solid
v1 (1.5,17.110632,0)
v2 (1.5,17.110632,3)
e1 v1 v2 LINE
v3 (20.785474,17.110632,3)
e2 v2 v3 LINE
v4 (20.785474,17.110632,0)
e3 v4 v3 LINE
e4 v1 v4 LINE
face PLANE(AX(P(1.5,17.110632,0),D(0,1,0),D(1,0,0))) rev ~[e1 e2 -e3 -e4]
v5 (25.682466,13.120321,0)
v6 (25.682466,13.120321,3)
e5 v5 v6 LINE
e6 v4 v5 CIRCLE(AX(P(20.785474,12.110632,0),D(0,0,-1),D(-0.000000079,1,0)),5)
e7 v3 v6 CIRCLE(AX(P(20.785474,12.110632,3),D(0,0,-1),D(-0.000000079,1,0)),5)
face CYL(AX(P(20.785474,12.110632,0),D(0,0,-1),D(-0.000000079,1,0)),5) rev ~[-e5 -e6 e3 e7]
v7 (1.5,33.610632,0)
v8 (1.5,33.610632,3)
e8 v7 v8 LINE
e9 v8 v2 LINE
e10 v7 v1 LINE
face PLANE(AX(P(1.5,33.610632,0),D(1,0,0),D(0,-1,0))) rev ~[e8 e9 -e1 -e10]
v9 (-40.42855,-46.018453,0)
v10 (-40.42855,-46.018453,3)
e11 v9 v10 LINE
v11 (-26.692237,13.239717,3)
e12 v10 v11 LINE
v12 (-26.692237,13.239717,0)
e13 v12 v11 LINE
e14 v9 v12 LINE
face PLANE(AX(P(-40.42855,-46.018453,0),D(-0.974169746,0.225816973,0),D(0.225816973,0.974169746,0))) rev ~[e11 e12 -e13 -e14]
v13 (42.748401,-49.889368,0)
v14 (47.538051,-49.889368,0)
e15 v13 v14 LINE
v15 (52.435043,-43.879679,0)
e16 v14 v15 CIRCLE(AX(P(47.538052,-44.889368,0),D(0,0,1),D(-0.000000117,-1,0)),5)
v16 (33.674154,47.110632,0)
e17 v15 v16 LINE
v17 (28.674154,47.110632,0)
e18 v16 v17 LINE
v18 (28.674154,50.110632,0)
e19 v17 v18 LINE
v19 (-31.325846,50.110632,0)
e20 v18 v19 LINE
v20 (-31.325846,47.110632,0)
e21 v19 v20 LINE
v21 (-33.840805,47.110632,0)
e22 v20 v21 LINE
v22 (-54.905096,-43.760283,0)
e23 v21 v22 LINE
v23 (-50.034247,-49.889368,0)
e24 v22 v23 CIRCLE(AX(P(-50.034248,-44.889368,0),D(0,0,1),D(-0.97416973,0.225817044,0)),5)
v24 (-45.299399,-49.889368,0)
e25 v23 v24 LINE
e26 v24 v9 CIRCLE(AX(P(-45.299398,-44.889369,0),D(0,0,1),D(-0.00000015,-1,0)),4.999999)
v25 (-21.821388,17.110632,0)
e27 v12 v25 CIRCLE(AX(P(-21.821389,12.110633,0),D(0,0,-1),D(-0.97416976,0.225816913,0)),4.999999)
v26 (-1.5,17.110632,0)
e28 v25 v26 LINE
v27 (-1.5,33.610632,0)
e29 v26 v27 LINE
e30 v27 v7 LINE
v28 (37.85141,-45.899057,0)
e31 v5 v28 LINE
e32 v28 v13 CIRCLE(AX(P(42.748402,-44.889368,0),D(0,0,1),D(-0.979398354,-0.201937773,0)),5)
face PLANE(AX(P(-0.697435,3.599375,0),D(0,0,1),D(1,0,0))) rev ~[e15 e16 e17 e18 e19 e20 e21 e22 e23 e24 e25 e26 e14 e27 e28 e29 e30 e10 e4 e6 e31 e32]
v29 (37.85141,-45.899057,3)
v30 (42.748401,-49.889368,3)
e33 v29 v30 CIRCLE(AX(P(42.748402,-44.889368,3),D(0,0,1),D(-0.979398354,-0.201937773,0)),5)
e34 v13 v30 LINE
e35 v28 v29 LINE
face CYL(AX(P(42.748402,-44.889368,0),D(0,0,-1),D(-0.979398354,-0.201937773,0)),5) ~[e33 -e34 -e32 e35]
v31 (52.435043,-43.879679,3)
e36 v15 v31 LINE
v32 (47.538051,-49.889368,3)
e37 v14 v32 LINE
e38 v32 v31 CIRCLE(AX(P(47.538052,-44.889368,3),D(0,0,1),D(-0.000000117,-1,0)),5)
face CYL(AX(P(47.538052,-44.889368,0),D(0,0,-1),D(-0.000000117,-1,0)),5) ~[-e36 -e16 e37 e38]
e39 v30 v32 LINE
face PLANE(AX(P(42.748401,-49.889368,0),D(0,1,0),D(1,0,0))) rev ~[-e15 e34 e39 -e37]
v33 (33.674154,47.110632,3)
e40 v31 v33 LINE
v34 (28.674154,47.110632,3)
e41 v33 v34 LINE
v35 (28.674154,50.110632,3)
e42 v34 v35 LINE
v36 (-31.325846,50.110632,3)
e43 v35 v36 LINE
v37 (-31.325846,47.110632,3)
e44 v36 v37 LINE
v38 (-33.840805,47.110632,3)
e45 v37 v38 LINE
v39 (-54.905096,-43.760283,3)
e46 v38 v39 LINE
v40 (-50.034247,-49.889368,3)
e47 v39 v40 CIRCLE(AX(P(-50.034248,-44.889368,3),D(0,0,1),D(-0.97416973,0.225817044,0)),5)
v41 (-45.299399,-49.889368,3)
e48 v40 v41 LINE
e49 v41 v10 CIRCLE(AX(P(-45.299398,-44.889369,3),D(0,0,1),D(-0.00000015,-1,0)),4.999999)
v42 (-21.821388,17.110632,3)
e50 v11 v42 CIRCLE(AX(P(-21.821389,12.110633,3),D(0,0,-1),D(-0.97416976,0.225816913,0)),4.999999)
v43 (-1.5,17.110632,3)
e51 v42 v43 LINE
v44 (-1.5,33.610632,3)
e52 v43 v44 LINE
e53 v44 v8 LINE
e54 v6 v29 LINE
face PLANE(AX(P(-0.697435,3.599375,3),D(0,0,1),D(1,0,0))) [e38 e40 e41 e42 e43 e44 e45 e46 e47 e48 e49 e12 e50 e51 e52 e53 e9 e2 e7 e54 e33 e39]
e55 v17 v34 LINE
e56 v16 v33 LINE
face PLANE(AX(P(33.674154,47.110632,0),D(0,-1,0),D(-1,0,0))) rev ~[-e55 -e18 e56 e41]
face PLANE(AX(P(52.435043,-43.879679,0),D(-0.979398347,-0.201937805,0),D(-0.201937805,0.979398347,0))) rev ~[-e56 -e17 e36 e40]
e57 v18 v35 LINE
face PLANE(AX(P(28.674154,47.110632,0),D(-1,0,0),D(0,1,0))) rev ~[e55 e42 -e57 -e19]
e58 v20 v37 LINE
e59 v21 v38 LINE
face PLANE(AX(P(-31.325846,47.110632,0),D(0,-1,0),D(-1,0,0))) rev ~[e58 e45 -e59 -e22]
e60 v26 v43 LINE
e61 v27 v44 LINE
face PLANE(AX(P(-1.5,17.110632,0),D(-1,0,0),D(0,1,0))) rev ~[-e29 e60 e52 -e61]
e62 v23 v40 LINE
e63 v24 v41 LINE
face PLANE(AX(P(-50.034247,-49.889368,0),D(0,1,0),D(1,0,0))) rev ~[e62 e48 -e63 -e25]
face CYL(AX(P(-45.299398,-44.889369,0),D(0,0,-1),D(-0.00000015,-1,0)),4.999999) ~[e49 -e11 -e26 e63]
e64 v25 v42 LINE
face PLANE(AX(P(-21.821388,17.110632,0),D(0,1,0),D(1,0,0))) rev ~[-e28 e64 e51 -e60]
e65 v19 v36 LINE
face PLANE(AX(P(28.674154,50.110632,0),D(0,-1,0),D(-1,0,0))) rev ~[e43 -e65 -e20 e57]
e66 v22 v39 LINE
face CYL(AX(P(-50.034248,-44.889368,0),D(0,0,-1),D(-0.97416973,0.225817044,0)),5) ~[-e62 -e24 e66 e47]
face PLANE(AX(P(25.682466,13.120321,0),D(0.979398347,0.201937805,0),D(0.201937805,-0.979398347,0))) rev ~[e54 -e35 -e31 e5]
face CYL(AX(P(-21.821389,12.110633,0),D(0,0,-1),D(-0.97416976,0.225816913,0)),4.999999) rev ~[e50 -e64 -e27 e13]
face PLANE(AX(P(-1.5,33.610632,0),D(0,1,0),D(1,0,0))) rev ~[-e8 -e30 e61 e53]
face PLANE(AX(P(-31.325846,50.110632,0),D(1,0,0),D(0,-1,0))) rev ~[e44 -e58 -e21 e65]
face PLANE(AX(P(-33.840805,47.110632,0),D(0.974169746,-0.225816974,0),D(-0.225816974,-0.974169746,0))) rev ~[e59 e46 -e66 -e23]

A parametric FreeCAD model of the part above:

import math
import FreeCAD as App
import Part
import Sketcher
Q = App.Units.Quantity

doc = App.newDocument("Part")
body = doc.addObject("PartDesign::Body", "Body")

# Sketch on XY plane
sketch1 = body.newObject("Sketcher::SketchObject", "Sketch")
sketch1.AttachmentSupport = (doc.getObject("XY_Plane"), [""])
sketch1.MapMode = "FlatFace"
sketch1.addGeometry([
    Part.LineSegment(App.Vector(28.7, 50.1, 0), App.Vector(-31.3, 50.1, 0)),  # 0
    Part.LineSegment(App.Vector(-31.3, 50.1, 0), App.Vector(-31.3, 47.1, 0)),  # 1
    Part.LineSegment(App.Vector(-31.3, 47.1, 0), App.Vector(-33.8, 47.1, 0)),  # 2
    Part.LineSegment(App.Vector(-33.8, 47.1, 0), App.Vector(-54.9, -43.8, 0)),  # 3
    Part.ArcOfCircle(Part.Circle(App.Vector(-50, -44.9, 0), App.Vector(0, 0, 1), 5), math.radians(167), math.radians(270)),  # 4
    Part.LineSegment(App.Vector(-50, -49.9, 0), App.Vector(-45.3, -49.9, 0)),  # 5
    Part.ArcOfCircle(Part.Circle(App.Vector(-45.3, -44.9, 0), App.Vector(0, 0, 1), 5), math.radians(-90), math.radians(-13)),  # 6
    Part.LineSegment(App.Vector(-40.4, -46, 0), App.Vector(-26.7, 13.2, 0)),  # 7
    Part.ArcOfCircle(Part.Circle(App.Vector(-21.8, 12.1, 0), App.Vector(0, 0, 1), 5), math.radians(90), math.radians(167)),  # 8
    Part.LineSegment(App.Vector(-21.8, 17.1, 0), App.Vector(-1.5, 17.1, 0)),  # 9
    Part.LineSegment(App.Vector(-1.5, 17.1, 0), App.Vector(-1.5, 33.6, 0)),  # 10
    Part.LineSegment(App.Vector(-1.5, 33.6, 0), App.Vector(1.5, 33.6, 0)),  # 11
    Part.LineSegment(App.Vector(1.5, 33.6, 0), App.Vector(1.5, 17.1, 0)),  # 12
    Part.LineSegment(App.Vector(1.5, 17.1, 0), App.Vector(20.8, 17.1, 0)),  # 13
    Part.ArcOfCircle(Part.Circle(App.Vector(20.8, 12.1, 0), App.Vector(0, 0, 1), 5), math.radians(12), math.radians(90)),  # 14
    Part.LineSegment(App.Vector(25.7, 13.1, 0), App.Vector(37.9, -45.9, 0)),  # 15
    Part.ArcOfCircle(Part.Circle(App.Vector(42.7, -44.9, 0), App.Vector(0, 0, 1), 5), math.radians(-168), math.radians(-90)),  # 16
    Part.LineSegment(App.Vector(42.7, -49.9, 0), App.Vector(47.5, -49.9, 0)),  # 17
    Part.ArcOfCircle(Part.Circle(App.Vector(47.5, -44.9, 0), App.Vector(0, 0, 1), 5), math.radians(-90), math.radians(12)),  # 18
    Part.LineSegment(App.Vector(52.4, -43.9, 0), App.Vector(33.7, 47.1, 0)),  # 19
    Part.LineSegment(App.Vector(33.7, 47.1, 0), App.Vector(28.7, 47.1, 0)),  # 20
    Part.LineSegment(App.Vector(28.7, 47.1, 0), App.Vector(28.7, 50.1, 0)),  # 21
], False)
sketch1.addConstraint([
    Sketcher.Constraint("Coincident", 0, 2, 1, 1),
    Sketcher.Constraint("Coincident", 1, 2, 2, 1),
    Sketcher.Constraint("Coincident", 2, 2, 3, 1),
    Sketcher.Constraint("Tangent", 3, 2, 4, 1),
    Sketcher.Constraint("Tangent", 4, 2, 5, 1),
    Sketcher.Constraint("Tangent", 5, 2, 6, 1),
    Sketcher.Constraint("Tangent", 6, 2, 7, 1),
    Sketcher.Constraint("Tangent", 7, 2, 8, 2),
    Sketcher.Constraint("Tangent", 8, 1, 9, 1),
    Sketcher.Constraint("Coincident", 9, 2, 10, 1),
    Sketcher.Constraint("Coincident", 10, 2, 11, 1),
    Sketcher.Constraint("Coincident", 11, 2, 12, 1),
    Sketcher.Constraint("Coincident", 12, 2, 13, 1),
    Sketcher.Constraint("Tangent", 13, 2, 14, 2),
    Sketcher.Constraint("Tangent", 14, 1, 15, 1),
    Sketcher.Constraint("Tangent", 15, 2, 16, 1),
    Sketcher.Constraint("Tangent", 16, 2, 17, 1),
    Sketcher.Constraint("Tangent", 17, 2, 18, 1),
    Sketcher.Constraint("Tangent", 18, 2, 19, 1),
    Sketcher.Constraint("Coincident", 19, 2, 20, 1),
    Sketcher.Constraint("Coincident", 20, 2, 21, 1),
    Sketcher.Constraint("Coincident", 21, 2, 0, 1),
    Sketcher.Constraint("Horizontal", 0),
    Sketcher.Constraint("Vertical", 1),
    Sketcher.Constraint("Horizontal", 2),
    Sketcher.Constraint("Horizontal", 5),
    Sketcher.Constraint("Horizontal", 9),
    Sketcher.Constraint("Vertical", 10),
    Sketcher.Constraint("Horizontal", 11),
    Sketcher.Constraint("Vertical", 12),
    Sketcher.Constraint("Horizontal", 13),
    Sketcher.Constraint("Horizontal", 17),
    Sketcher.Constraint("Horizontal", 20),
    Sketcher.Constraint("Vertical", 21),
    Sketcher.Constraint("Equal", 4, 6),
    Sketcher.Constraint("Equal", 6, 8),
    Sketcher.Constraint("Equal", 8, 14),
    Sketcher.Constraint("Equal", 14, 16),
    Sketcher.Constraint("Equal", 16, 18),
    Sketcher.Constraint("Symmetric", 9, 2, 12, 2, -2),
    Sketcher.Constraint("Parallel", 3, 7),
    Sketcher.Constraint("Parallel", 15, 19),
    Sketcher.Constraint("Horizontal", 6, 3, 16, 3),
    Sketcher.Constraint("Horizontal", 2, 2, 19, 2),
    Sketcher.Constraint("Equal", 11, 1),
    Sketcher.Constraint("Radius", 4, Q("5 mm")),
    Sketcher.Constraint("DistanceX", 0, 2, 0, 1, Q("60 mm")),
    Sketcher.Constraint("DistanceX", 11, 1, 11, 2, Q("3 mm")),
    Sketcher.Constraint("DistanceX", 20, 2, 20, 1, Q("5 mm")),
    Sketcher.Constraint("DistanceY", 10, 1, 10, 2, Q("16.5 mm")),
    Sketcher.Constraint("DistanceY", 6, 3, 8, 3, Q("57.000001 mm")),
    Sketcher.Constraint("DistanceY", 8, 3, 0, 2, Q("37.999999 mm")),
    Sketcher.Constraint("DistanceX", 2, 2, 2, 1, Q("2.514959 mm")),
    Sketcher.Constraint("DistanceX", 17, 1, 17, 2, Q("4.78965 mm")),
    Sketcher.Constraint("DistanceX", 6, 3, -1, 1, Q("45.299398 mm")),
    Sketcher.Constraint("DistanceX", -1, 1, 16, 3, Q("42.748402 mm")),
    Sketcher.Constraint("DistanceX", 4, 3, 18, 3, Q("97.572299 mm")),
    Sketcher.Constraint("DistanceX", 4, 3, 0, 2, Q("18.708402 mm")),
    Sketcher.Constraint("DistanceY", 4, 3, -1, 1, Q("44.889368 mm")),
])
pad1 = body.newObject("PartDesign::Pad", "Pad")
pad1.Profile = sketch1
pad1.Length = 3

doc.recompute()
